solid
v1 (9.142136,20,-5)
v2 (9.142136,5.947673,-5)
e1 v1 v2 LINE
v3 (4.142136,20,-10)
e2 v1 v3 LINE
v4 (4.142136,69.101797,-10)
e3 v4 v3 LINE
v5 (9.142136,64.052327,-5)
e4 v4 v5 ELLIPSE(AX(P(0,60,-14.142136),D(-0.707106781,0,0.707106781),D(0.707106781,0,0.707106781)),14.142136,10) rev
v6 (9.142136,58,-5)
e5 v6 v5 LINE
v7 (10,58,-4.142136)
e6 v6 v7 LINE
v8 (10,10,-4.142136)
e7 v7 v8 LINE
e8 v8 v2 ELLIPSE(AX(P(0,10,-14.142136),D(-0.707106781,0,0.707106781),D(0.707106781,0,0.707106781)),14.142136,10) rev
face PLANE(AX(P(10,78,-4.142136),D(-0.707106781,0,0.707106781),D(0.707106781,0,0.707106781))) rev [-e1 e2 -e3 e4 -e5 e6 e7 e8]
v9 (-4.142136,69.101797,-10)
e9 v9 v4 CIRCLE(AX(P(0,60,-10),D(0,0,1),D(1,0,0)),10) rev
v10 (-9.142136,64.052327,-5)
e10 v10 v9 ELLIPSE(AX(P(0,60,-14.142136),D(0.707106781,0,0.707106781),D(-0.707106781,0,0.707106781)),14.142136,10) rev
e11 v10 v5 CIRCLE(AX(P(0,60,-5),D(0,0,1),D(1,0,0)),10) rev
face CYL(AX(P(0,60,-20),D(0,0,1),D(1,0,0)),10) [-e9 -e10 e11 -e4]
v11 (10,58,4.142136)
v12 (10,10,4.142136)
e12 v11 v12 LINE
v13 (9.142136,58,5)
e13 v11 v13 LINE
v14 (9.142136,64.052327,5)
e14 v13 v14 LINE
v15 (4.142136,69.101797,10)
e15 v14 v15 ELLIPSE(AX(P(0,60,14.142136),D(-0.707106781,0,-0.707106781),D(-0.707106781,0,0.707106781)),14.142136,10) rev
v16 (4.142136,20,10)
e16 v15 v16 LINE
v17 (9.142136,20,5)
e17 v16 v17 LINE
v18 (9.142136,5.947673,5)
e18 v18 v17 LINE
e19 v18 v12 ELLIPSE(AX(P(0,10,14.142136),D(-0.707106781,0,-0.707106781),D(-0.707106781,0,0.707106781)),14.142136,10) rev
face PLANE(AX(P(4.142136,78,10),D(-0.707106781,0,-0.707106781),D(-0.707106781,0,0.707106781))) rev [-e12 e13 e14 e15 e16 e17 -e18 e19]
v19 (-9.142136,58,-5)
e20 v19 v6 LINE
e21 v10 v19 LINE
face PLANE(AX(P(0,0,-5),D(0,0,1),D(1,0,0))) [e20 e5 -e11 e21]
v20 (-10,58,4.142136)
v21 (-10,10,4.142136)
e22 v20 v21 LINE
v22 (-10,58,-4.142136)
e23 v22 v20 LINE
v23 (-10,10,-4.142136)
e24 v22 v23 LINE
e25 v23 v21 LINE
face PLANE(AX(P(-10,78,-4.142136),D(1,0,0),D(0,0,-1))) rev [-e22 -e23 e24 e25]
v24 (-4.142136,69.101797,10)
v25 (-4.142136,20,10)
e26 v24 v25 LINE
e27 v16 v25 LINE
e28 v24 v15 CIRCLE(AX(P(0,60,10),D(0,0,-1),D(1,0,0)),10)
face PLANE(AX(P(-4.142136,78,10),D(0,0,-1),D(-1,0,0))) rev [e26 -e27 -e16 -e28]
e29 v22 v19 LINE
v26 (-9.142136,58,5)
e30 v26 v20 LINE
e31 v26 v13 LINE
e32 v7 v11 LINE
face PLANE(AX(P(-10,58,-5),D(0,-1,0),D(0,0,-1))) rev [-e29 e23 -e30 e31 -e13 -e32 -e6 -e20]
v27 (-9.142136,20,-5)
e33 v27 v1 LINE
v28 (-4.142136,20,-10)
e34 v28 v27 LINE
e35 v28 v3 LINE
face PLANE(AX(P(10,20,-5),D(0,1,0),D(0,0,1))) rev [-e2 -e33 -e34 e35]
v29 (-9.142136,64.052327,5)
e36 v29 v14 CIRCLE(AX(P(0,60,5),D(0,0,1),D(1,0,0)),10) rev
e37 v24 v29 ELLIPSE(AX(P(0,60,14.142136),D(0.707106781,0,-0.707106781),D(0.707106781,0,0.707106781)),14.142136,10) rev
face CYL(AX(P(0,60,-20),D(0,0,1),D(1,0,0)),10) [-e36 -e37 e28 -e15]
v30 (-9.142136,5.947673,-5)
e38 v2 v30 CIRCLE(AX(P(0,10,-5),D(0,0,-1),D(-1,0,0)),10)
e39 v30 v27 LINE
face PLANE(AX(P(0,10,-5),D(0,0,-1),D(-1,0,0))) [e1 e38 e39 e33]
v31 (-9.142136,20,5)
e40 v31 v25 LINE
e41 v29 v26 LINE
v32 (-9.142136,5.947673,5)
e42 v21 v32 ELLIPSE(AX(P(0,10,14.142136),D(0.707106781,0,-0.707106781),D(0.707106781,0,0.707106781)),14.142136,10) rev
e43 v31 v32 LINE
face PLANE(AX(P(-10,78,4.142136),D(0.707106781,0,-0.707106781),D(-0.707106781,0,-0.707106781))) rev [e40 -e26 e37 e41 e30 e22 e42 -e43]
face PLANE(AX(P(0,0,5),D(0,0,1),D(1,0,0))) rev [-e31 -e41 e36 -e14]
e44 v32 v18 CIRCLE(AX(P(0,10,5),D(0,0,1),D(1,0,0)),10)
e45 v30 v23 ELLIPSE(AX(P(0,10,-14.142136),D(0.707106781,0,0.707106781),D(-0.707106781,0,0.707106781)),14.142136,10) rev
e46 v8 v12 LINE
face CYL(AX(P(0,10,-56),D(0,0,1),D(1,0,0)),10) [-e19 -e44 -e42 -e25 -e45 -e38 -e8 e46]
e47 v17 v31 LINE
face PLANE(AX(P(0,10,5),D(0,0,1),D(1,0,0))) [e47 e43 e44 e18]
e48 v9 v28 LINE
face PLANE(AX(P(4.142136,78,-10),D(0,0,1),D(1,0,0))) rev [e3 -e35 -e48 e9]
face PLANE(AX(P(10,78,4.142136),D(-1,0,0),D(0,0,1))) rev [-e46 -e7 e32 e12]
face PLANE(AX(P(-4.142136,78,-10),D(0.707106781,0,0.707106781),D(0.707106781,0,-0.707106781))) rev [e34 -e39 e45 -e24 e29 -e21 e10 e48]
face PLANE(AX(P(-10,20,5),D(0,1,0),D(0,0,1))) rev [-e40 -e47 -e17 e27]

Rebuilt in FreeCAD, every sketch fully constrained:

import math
import FreeCAD as App
import Part
import Sketcher

V = App.Vector


def add_polygon(sketch, points):
    """Adds a closed chain of lines whose ends are joined by coincident constraints."""
    first, n = sketch.GeometryCount, len(points)
    for a, b in zip(points, points[1:] + points[:1]):
        sketch.addGeometry(Part.LineSegment(App.Vector(*a, 0), App.Vector(*b, 0)), False)
    for i in range(n):
        sketch.addConstraint(Sketcher.Constraint("Coincident", first + i, 2, first + (i + 1) % n, 1))

doc = App.newDocument("Part")
body = doc.addObject("PartDesign::Body", "Body")

sketch1 = body.newObject("Sketcher::SketchObject", "Sketch")
sketch1.AttachmentSupport = (doc.getObject("XZ_Plane"), [""])
sketch1.MapMode = "FlatFace"
add_polygon(sketch1, [(10, -4), (4, -10), (-4, -10), (-10, -4), (-10, 4), (-4, 10), (4, 10), (10, 4)])
sketch1.addConstraint([
    Sketcher.Constraint("Horizontal", 1),
    Sketcher.Constraint("Vertical", 3),
    Sketcher.Constraint("Horizontal", 5),
    Sketcher.Constraint("Vertical", 7),
    Sketcher.Constraint("Symmetric", 0, 2, 4, 2, -1, 1),
    Sketcher.Constraint("Symmetric", 2, 2, 6, 2, -1, 1),
    Sketcher.Constraint("Perpendicular", 0, 2),
    Sketcher.Constraint("Perpendicular", 2, 4),
    Sketcher.Constraint("Perpendicular", 4, 6),
    Sketcher.Constraint("Horizontal", 3, 2, 6, 2),
    Sketcher.Constraint("Vertical", 1, 2, 4, 2),
    Sketcher.Constraint("Equal", 5, 3),
    Sketcher.Constraint("DistanceY", 0, 2, -1, 1, 10.0),
    Sketcher.Constraint("DistanceX", 1, 2, 1, 1, 8.284271),
])
pad1 = body.newObject("PartDesign::Pad", "Pad")
pad1.Profile = sketch1
pad1.Length = 78
pad1.Reversed = True

sketch2 = body.newObject("Sketcher::SketchObject", "Sketch001")
sketch2.AttachmentSupport = (doc.getObject("XY_Plane"), [""])
sketch2.MapMode = "FlatFace"
sketch2.AttachmentOffset = App.Placement(V(0, 0, 10), App.Rotation())
sketch2.addGeometry([
    Part.LineSegment(V(-10, 10, 0), V(-10, -2, 0)),
    Part.LineSegment(V(-10, -2, 0), V(10, -2, 0)),
    Part.LineSegment(V(10, -2, 0), V(10, 10, 0)),
    Part.ArcOfCircle(Part.Circle(V(0, 10, 0), V(0, 0, 1), 10), math.radians(180), math.radians(360)),
], False)
sketch2.addConstraint([
    Sketcher.Constraint("Coincident", 0, 2, 1, 1),
    Sketcher.Constraint("Coincident", 1, 2, 2, 1),
    Sketcher.Constraint("Tangent", 2, 2, 3, 2),
    Sketcher.Constraint("Tangent", 3, 1, 0, 1),
    Sketcher.Constraint("Vertical", 0),
    Sketcher.Constraint("Horizontal", 1),
    Sketcher.Constraint("Vertical", 2),
    Sketcher.Constraint("PointOnObject", 3, 3, -2),
    Sketcher.Constraint("Radius", 3, 10.0),
    Sketcher.Constraint("DistanceY", -1, 1, 3, 3, 10.0),
    Sketcher.Constraint("DistanceY", 0, 2, 0, 1, 12.389296),
])
pocket1 = body.newObject("PartDesign::Pocket", "Pocket")
pocket1.Profile = sketch2
pocket1.Length = 66

sketch3 = body.newObject("Sketcher::SketchObject", "Sketch002")
sketch3.AttachmentSupport = (doc.getObject("XY_Plane"), [""])
sketch3.MapMode = "FlatFace"
sketch3.AttachmentOffset = App.Placement(V(0, 0, 10), App.Rotation())
sketch3.addGeometry([
    Part.LineSegment(V(-10, 20, 0), V(-10, 10, 0)),
    Part.ArcOfCircle(Part.Circle(V(0, 10, 0), V(0, 0, 1), 10), math.radians(180), math.radians(360)),
    Part.LineSegment(V(10, 10, 0), V(10, 20, 0)),
    Part.LineSegment(V(10, 20, 0), V(-10, 20, 0)),
], False)
sketch3.addConstraint([
    Sketcher.Constraint("Tangent", 0, 2, 1, 1),
    Sketcher.Constraint("Tangent", 1, 2, 2, 1),
    Sketcher.Constraint("Coincident", 2, 2, 3, 1),
    Sketcher.Constraint("Coincident", 3, 2, 0, 1),
    Sketcher.Constraint("Vertical", 0),
    Sketcher.Constraint("Vertical", 2),
    Sketcher.Constraint("Horizontal", 3),
    Sketcher.Constraint("PointOnObject", 1, 3, -2),
    Sketcher.Constraint("Radius", 1, 10.0),
    Sketcher.Constraint("DistanceY", 0, 2, 0, 1, 10.0),
    Sketcher.Constraint("DistanceY", -1, 1, 1, 3, 10.0),
])
pocket2 = body.newObject("PartDesign::Pocket", "Pocket001")
pocket2.Profile = sketch3
pocket2.Length = 5

sketch4 = body.newObject("Sketcher::SketchObject", "Sketch003")
sketch4.AttachmentSupport = (doc.getObject("XY_Plane"), [""])
sketch4.MapMode = "FlatFace"
sketch4.AttachmentOffset = App.Placement(V(0, 0, -5), App.Rotation())
sketch4.addGeometry([
    Part.LineSegment(V(10, 20, 0), V(10, 10, 0)),
    Part.ArcOfCircle(Part.Circle(V(0, 10, 0), V(0, 0, 1), 10), math.radians(180), math.radians(360)),
    Part.LineSegment(V(-10, 10, 0), V(-10, 20, 0)),
    Part.LineSegment(V(-10, 20, 0), V(10, 20, 0)),
], False)
sketch4.addConstraint([
    Sketcher.Constraint("Tangent", 0, 2, 1, 2),
    Sketcher.Constraint("Tangent", 1, 1, 2, 1),
    Sketcher.Constraint("Coincident", 2, 2, 3, 1),
    Sketcher.Constraint("Coincident", 3, 2, 0, 1),
    Sketcher.Constraint("Vertical", 0),
    Sketcher.Constraint("Vertical", 2),
    Sketcher.Constraint("Horizontal", 3),
    Sketcher.Constraint("PointOnObject", 1, 3, -2),
    Sketcher.Constraint("Radius", 1, 10.0),
    Sketcher.Constraint("DistanceY", 0, 2, 0, 1, 10.0),
    Sketcher.Constraint("DistanceY", -1, 1, 1, 3, 10.0),
])
pocket3 = body.newObject("PartDesign::Pocket", "Pocket002")
pocket3.Profile = sketch4
pocket3.Length = 5

sketch5 = body.newObject("Sketcher::SketchObject", "Sketch004")
sketch5.AttachmentSupport = (doc.getObject("XY_Plane"), [""])
sketch5.MapMode = "FlatFace"
add_polygon(sketch5, [(-10, 78), (-10, 58), (10, 58), (10, 78)])
sketch5.addConstraint([
    Sketcher.Constraint("Vertical", 0),
    Sketcher.Constraint("Horizontal", 1),
    Sketcher.Constraint("Vertical", 2),
    Sketcher.Constraint("Horizontal", 3),
    Sketcher.Constraint("Equal", 3, 0),
    Sketcher.Constraint("DistanceX", 1, 1, 1, 2, 20.0),
    Sketcher.Constraint("DistanceX", 0, 2, -1, 1, 10.0),
    Sketcher.Constraint("DistanceY", -1, 1, 0, 2, 58.0),
])
pocket4 = body.newObject("PartDesign::Pocket", "Pocket003")
pocket4.Profile = sketch5
pocket4.Length = 10
pocket4.Midplane = True

sketch6 = body.newObject("Sketcher::SketchObject", "Sketch005")
sketch6.AttachmentSupport = (doc.getObject("XY_Plane"), [""])
sketch6.MapMode = "FlatFace"
sketch6.AttachmentOffset = App.Placement(V(0, 0, 10), App.Rotation())
sketch6.addGeometry([
    Part.LineSegment(V(-10, 79, 0), V(-10, 60, 0)),
    Part.ArcOfCircle(Part.Circle(V(0, 60, 0), V(0, 0, 1), 10), math.radians(0), math.radians(180)),
    Part.LineSegment(V(10, 60, 0), V(10, 79, 0)),
    Part.LineSegment(V(10, 79, 0), V(-10, 79, 0)),
], False)
sketch6.addConstraint([
    Sketcher.Constraint("Tangent", 0, 2, 1, 2),
    Sketcher.Constraint("Tangent", 1, 1, 2, 1),
    Sketcher.Constraint("Coincident", 2, 2, 3, 1),
    Sketcher.Constraint("Coincident", 3, 2, 0, 1),
    Sketcher.Constraint("Vertical", 0),
    Sketcher.Constraint("Vertical", 2),
    Sketcher.Constraint("Horizontal", 3),
    Sketcher.Constraint("PointOnObject", 1, 3, -2),
    Sketcher.Constraint("Radius", 1, 10.0),
    Sketcher.Constraint("DistanceY", -1, 1, 1, 3, 60.0),
    Sketcher.Constraint("DistanceY", 0, 2, 0, 1, 19.107913),
])
pocket5 = body.newObject("PartDesign::Pocket", "Pocket004")
pocket5.Profile = sketch6
pocket5.Length = 30

doc.recompute()
